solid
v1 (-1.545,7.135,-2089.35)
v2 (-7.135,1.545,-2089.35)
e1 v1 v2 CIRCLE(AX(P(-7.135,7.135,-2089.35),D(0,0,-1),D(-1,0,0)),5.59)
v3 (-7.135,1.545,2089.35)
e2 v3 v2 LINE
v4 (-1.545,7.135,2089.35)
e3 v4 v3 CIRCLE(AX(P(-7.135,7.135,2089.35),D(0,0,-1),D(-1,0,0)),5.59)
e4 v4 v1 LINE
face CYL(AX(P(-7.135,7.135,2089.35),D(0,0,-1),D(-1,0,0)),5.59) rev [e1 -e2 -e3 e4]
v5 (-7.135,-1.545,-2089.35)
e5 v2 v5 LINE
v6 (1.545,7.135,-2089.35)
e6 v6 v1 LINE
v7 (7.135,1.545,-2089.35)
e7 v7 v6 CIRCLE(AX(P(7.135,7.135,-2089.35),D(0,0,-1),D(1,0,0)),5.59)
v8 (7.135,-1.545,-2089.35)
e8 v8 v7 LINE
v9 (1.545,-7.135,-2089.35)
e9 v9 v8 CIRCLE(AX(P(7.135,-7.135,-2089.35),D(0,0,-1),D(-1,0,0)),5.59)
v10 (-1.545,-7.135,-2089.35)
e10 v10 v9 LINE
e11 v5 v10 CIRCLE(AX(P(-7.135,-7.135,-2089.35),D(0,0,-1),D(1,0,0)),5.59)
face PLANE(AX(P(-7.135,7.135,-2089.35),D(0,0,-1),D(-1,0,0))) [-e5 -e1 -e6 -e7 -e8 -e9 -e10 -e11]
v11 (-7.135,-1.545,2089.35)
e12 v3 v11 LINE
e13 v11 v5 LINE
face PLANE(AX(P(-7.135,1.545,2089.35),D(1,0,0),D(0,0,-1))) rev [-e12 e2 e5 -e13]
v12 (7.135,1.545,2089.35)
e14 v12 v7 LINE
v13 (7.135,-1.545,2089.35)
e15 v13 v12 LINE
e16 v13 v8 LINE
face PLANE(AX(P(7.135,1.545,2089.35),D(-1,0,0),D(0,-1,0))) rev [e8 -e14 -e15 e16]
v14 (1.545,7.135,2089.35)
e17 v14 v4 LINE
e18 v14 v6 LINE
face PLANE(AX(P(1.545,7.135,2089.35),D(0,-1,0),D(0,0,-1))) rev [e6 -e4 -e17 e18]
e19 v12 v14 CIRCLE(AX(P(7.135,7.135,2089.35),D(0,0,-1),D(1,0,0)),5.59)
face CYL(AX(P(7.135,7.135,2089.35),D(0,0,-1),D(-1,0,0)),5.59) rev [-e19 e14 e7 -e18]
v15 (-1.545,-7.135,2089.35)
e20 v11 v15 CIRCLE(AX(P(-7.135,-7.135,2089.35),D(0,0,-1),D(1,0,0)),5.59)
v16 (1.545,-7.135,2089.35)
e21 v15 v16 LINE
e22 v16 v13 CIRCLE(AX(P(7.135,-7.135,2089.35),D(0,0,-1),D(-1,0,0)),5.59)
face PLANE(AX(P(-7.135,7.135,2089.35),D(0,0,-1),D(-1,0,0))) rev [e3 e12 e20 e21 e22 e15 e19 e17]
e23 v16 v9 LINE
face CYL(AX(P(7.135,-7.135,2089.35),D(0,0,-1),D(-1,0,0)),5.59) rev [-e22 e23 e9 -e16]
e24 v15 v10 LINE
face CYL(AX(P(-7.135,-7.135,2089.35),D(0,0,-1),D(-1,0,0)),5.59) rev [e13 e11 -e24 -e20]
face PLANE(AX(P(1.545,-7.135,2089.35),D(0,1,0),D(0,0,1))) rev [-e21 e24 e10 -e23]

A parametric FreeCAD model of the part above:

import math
import FreeCAD as App
import Part
import Sketcher

V = App.Vector

doc = App.newDocument("Part")
body = doc.addObject("PartDesign::Body", "Body")

sketch1 = body.newObject("Sketcher::SketchObject", "Sketch")
sketch1.AttachmentSupport = (doc.getObject("XY_Plane"), [""])
sketch1.MapMode = "FlatFace"
sketch1.addGeometry([
    Part.LineSegment(V(1.545, 7.135, 0), V(-1.545, 7.135, 0)),
    Part.ArcOfCircle(Part.Circle(V(-7.135, 7.135, 0), V(0, 0, 1), 5.59), math.radians(-90), math.radians(0)),
    Part.LineSegment(V(-7.135, 1.545, 0), V(-7.135, -1.545, 0)),
    Part.ArcOfCircle(Part.Circle(V(-7.135, -7.135, 0), V(0, 0, 1), 5.59), math.radians(0), math.radians(90)),
    Part.LineSegment(V(-1.545, -7.135, 0), V(1.545, -7.135, 0)),
    Part.ArcOfCircle(Part.Circle(V(7.135, -7.135, 0), V(0, 0, 1), 5.59), math.radians(90), math.radians(180)),
    Part.LineSegment(V(7.135, -1.545, 0), V(7.135, 1.545, 0)),
    Part.ArcOfCircle(Part.Circle(V(7.135, 7.135, 0), V(0, 0, 1), 5.59), math.radians(180), math.radians(270)),
], False)
sketch1.addConstraint([
    Sketcher.Constraint("Coincident", 0, 2, 1, 2),
    Sketcher.Constraint("Coincident", 1, 1, 2, 1),
    Sketcher.Constraint("Coincident", 2, 2, 3, 2),
    Sketcher.Constraint("Coincident", 3, 1, 4, 1),
    Sketcher.Constraint("Coincident", 4, 2, 5, 2),
    Sketcher.Constraint("Coincident", 5, 1, 6, 1),
    Sketcher.Constraint("Coincident", 6, 2, 7, 2),
    Sketcher.Constraint("Coincident", 7, 1, 0, 1),
    Sketcher.Constraint("Horizontal", 0),
    Sketcher.Constraint("Vertical", 2),
    Sketcher.Constraint("Horizontal", 4),
    Sketcher.Constraint("Vertical", 6),
    Sketcher.Constraint("Equal", 1, 3),
    Sketcher.Constraint("Equal", 3, 5),
    Sketcher.Constraint("Equal", 5, 7),
    Sketcher.Constraint("Symmetric", 1, 3, 5, 3, -1, 1),
    Sketcher.Constraint("Symmetric", 3, 3, 7, 3, -1, 1),
    Sketcher.Constraint("Symmetric", 3, 3, 5, 3, -2),
    Sketcher.Constraint("Horizontal", 7, 3, 0, 2),
    Sketcher.Constraint("Horizontal", 5, 3, 3, 1),
    Sketcher.Constraint("Vertical", 3, 3, 1, 1),
    Sketcher.Constraint("Vertical", 7, 3, 5, 1),
    Sketcher.Constraint("Equal", 4, 2),
    Sketcher.Constraint("Radius", 1, 5.59),
    Sketcher.Constraint("DistanceX", 0, 2, 0, 1, 3.09),
])
pad1 = body.newObject("PartDesign::Pad", "Pad")
pad1.Profile = sketch1
pad1.Length = 4178.7
pad1.Midplane = True

doc.recompute()
